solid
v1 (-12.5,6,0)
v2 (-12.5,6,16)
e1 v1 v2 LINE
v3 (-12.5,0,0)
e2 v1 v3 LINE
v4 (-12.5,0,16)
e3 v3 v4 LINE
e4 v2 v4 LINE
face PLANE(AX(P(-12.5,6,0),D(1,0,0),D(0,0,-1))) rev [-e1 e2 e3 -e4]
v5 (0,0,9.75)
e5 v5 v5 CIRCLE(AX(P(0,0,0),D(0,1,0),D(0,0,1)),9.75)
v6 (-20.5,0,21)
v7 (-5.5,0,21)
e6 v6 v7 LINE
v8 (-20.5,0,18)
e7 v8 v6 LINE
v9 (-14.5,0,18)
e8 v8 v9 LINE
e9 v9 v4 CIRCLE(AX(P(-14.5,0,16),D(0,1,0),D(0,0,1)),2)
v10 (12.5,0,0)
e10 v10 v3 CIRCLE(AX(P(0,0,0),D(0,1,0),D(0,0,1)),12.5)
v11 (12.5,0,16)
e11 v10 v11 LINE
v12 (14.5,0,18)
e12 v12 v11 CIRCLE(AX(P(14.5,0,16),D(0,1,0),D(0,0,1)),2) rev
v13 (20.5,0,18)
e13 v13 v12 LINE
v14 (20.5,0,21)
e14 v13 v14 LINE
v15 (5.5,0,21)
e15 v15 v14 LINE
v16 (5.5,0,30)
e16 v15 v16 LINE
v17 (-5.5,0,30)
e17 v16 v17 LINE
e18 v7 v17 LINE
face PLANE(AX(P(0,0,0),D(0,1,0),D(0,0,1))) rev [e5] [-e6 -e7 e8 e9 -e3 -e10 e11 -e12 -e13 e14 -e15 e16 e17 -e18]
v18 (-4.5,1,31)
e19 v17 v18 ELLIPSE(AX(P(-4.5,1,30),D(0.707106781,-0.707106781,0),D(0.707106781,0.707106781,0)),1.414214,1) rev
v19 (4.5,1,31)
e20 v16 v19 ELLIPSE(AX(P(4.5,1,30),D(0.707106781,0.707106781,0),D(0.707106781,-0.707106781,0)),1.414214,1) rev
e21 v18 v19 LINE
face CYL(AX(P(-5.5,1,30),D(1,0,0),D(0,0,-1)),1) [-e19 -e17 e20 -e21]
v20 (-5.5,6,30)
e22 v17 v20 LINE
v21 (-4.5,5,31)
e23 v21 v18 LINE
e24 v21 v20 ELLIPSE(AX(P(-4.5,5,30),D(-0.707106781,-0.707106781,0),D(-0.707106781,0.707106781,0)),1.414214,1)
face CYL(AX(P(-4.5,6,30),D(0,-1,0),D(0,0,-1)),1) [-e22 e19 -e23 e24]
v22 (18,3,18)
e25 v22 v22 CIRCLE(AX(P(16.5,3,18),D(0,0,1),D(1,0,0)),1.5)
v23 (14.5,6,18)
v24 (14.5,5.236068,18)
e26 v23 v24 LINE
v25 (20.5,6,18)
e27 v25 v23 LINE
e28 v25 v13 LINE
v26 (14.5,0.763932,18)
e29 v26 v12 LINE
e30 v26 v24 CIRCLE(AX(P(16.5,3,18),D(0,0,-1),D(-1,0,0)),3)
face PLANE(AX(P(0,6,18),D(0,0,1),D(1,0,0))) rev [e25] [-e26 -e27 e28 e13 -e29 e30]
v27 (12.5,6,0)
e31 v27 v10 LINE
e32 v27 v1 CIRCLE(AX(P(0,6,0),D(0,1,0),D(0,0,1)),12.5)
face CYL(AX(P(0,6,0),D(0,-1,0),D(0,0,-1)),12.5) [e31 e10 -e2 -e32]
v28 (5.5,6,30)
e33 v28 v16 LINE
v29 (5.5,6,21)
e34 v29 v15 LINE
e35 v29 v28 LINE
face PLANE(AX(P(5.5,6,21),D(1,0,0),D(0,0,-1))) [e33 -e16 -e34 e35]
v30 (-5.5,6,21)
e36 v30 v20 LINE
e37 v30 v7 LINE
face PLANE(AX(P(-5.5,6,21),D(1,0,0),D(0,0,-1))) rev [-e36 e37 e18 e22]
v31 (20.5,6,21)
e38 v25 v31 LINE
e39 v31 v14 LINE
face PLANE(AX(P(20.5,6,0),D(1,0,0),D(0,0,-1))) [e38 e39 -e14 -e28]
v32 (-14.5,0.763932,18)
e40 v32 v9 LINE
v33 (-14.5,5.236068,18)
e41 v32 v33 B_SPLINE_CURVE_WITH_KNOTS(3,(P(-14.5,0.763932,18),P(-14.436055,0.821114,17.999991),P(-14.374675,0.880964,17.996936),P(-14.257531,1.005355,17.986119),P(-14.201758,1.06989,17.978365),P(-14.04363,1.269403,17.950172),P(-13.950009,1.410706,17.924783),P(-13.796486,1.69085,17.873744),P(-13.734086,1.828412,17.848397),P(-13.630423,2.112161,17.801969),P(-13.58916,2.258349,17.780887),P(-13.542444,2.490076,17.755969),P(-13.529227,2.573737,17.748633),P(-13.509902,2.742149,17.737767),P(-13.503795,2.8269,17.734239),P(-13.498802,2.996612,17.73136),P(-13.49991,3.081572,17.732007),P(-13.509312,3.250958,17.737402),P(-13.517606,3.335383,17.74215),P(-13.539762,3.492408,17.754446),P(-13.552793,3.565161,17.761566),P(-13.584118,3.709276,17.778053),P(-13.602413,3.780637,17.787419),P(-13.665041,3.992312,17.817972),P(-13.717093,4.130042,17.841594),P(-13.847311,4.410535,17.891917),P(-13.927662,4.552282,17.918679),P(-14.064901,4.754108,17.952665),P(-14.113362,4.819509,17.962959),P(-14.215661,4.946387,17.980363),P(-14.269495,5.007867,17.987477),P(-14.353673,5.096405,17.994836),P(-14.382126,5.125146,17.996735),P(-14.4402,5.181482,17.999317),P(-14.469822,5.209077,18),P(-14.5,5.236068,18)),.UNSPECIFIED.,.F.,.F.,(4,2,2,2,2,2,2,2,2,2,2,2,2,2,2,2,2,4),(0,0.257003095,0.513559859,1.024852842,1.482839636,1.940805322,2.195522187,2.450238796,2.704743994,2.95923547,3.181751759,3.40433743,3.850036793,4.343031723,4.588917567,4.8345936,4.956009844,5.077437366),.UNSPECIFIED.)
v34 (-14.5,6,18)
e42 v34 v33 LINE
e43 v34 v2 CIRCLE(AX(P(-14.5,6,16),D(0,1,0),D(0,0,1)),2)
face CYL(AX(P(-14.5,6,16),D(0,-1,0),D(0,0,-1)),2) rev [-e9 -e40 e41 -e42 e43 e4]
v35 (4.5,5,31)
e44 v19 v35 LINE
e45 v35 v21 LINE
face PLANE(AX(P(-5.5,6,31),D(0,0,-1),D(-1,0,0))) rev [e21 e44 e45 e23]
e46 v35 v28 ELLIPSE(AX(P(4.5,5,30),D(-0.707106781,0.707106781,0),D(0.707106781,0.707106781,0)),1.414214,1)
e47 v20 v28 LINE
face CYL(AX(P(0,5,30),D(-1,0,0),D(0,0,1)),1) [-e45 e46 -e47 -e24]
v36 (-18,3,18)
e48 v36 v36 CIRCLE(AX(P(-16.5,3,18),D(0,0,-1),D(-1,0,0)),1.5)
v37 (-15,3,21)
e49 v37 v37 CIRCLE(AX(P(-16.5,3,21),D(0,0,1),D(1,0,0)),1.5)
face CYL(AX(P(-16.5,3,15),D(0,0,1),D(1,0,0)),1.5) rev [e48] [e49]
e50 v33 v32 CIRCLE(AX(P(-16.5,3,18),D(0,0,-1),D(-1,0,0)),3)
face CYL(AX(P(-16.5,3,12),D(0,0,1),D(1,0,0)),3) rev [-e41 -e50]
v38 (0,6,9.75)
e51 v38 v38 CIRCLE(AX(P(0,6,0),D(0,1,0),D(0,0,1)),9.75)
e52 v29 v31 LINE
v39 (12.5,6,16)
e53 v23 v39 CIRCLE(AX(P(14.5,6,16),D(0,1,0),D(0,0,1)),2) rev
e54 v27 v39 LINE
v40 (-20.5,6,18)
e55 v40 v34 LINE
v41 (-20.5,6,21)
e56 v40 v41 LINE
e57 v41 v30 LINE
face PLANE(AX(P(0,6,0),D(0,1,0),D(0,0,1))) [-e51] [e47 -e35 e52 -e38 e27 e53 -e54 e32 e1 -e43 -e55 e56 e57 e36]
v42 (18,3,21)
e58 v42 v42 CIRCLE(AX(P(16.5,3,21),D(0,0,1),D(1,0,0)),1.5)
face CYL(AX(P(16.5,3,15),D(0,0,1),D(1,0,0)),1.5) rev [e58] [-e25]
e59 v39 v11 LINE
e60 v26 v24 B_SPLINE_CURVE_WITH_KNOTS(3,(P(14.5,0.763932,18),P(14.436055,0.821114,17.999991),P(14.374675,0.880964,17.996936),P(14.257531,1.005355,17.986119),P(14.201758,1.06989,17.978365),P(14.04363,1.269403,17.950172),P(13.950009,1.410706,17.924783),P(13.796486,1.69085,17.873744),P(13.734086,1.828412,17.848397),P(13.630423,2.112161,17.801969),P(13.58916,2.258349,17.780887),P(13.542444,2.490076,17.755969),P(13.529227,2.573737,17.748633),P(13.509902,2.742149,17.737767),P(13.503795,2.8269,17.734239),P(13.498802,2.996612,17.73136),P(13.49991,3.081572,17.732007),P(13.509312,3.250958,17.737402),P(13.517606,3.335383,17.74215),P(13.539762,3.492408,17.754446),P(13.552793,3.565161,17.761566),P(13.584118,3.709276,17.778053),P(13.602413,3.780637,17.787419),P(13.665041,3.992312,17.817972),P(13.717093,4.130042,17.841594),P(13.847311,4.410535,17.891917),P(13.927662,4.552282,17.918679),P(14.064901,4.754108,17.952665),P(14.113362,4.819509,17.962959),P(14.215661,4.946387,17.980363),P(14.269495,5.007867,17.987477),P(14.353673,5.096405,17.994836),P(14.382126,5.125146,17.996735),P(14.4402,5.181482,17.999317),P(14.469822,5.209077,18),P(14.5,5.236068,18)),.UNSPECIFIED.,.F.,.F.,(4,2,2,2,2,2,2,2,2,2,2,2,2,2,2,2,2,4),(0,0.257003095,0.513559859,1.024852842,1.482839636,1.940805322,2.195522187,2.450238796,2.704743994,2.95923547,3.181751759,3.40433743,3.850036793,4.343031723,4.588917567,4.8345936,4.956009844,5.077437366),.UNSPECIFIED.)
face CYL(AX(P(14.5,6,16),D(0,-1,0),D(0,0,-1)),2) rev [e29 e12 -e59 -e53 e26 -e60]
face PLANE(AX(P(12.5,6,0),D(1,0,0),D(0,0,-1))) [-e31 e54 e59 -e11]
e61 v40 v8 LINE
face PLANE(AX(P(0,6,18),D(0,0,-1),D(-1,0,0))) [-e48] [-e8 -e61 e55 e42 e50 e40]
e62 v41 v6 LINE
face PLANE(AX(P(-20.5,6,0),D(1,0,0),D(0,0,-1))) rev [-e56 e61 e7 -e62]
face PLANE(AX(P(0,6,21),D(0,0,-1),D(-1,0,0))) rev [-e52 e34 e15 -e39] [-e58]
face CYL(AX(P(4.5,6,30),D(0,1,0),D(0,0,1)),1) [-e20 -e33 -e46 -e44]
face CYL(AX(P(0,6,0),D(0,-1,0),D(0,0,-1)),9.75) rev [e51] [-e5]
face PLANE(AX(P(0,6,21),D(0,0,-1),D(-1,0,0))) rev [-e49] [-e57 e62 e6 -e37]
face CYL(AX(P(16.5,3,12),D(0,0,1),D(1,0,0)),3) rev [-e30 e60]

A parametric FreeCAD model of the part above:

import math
import FreeCAD as App
import Part
import Sketcher


def edges_at(feature, points):
    """Names of the edges that pass closest to the given points."""
    edges = feature.Shape.Edges
    near = lambda p: min(range(len(edges)), key=lambda i: edges[i].distToShape(Part.Vertex(*p))[0])
    return sorted({f"Edge{near(p) + 1}" for p in points})

doc = App.newDocument("Part")
body = doc.addObject("PartDesign::Body", "Body")

# Sketch on XZ plane
sketch1 = body.newObject("Sketcher::SketchObject", "Sketch")
sketch1.AttachmentSupport = (doc.getObject("XZ_Plane"), [""])
sketch1.MapMode = "FlatFace"
sketch1.addGeometry(Part.ArcOfCircle(Part.Circle(App.Vector(0, 0, 0), App.Vector(0, 0, 1), 12.5), math.radians(180), math.radians(360)), False)
sketch1.addGeometry(Part.LineSegment(App.Vector(-12.5, 0, 0), App.Vector(-12.5, 16, 0)), False)
sketch1.addGeometry(Part.ArcOfCircle(Part.Circle(App.Vector(-14.5, 16, 0), App.Vector(0, 0, 1), 2), math.radians(0), math.radians(90)), False)
sketch1.addGeometry(Part.LineSegment(App.Vector(-14.5, 18, 0), App.Vector(-20.5, 18, 0)), False)
sketch1.addGeometry(Part.LineSegment(App.Vector(-20.5, 18, 0), App.Vector(-20.5, 21, 0)), False)
sketch1.addGeometry(Part.LineSegment(App.Vector(-20.5, 21, 0), App.Vector(-5.5, 21, 0)), False)
sketch1.addGeometry(Part.LineSegment(App.Vector(-5.5, 21, 0), App.Vector(-5.5, 31, 0)), False)
sketch1.addGeometry(Part.LineSegment(App.Vector(-5.5, 31, 0), App.Vector(5.5, 31, 0)), False)
sketch1.addGeometry(Part.LineSegment(App.Vector(5.5, 31, 0), App.Vector(5.5, 21, 0)), False)
sketch1.addGeometry(Part.LineSegment(App.Vector(5.5, 21, 0), App.Vector(20.5, 21, 0)), False)
sketch1.addGeometry(Part.LineSegment(App.Vector(20.5, 21, 0), App.Vector(20.5, 18, 0)), False)
sketch1.addGeometry(Part.LineSegment(App.Vector(20.5, 18, 0), App.Vector(14.5, 18, 0)), False)
sketch1.addGeometry(Part.ArcOfCircle(Part.Circle(App.Vector(14.5, 16, 0), App.Vector(0, 0, 1), 2), math.radians(90), math.radians(180)), False)
sketch1.addGeometry(Part.LineSegment(App.Vector(12.5, 16, 0), App.Vector(12.5, 0, 0)), False)
sketch1.addGeometry(Part.Circle(App.Vector(0, 0, 0), App.Vector(0, 0, 1), 9.8), False)
sketch1.addConstraint(Sketcher.Constraint("Tangent", 0, 1, 1, 1))
sketch1.addConstraint(Sketcher.Constraint("Tangent", 1, 2, 2, 1))
sketch1.addConstraint(Sketcher.Constraint("Tangent", 2, 2, 3, 1))
sketch1.addConstraint(Sketcher.Constraint("Coincident", 3, 2, 4, 1))
sketch1.addConstraint(Sketcher.Constraint("Coincident", 4, 2, 5, 1))
sketch1.addConstraint(Sketcher.Constraint("Coincident", 5, 2, 6, 1))
sketch1.addConstraint(Sketcher.Constraint("Coincident", 6, 2, 7, 1))
sketch1.addConstraint(Sketcher.Constraint("Coincident", 7, 2, 8, 1))
sketch1.addConstraint(Sketcher.Constraint("Coincident", 8, 2, 9, 1))
sketch1.addConstraint(Sketcher.Constraint("Coincident", 9, 2, 10, 1))
sketch1.addConstraint(Sketcher.Constraint("Coincident", 10, 2, 11, 1))
sketch1.addConstraint(Sketcher.Constraint("Tangent", 11, 2, 12, 1))
sketch1.addConstraint(Sketcher.Constraint("Tangent", 12, 2, 13, 1))
sketch1.addConstraint(Sketcher.Constraint("Tangent", 13, 2, 0, 2))
sketch1.addConstraint(Sketcher.Constraint("Vertical", 1))
sketch1.addConstraint(Sketcher.Constraint("Horizontal", 3))
sketch1.addConstraint(Sketcher.Constraint("Vertical", 4))
sketch1.addConstraint(Sketcher.Constraint("Horizontal", 5))
sketch1.addConstraint(Sketcher.Constraint("Vertical", 6))
sketch1.addConstraint(Sketcher.Constraint("Horizontal", 7))
sketch1.addConstraint(Sketcher.Constraint("Vertical", 8))
sketch1.addConstraint(Sketcher.Constraint("Horizontal", 9))
sketch1.addConstraint(Sketcher.Constraint("Vertical", 10))
sketch1.addConstraint(Sketcher.Constraint("Horizontal", 11))
sketch1.addConstraint(Sketcher.Constraint("Vertical", 13))
sketch1.addConstraint(Sketcher.Constraint("Coincident", 0, 3, -1, 1))
sketch1.addConstraint(Sketcher.Constraint("Coincident", 14, 3, -1, 1))
sketch1.addConstraint(Sketcher.Constraint("Equal", 2, 12))
sketch1.addConstraint(Sketcher.Constraint("Symmetric", 5, 2, 8, 2, -2))
sketch1.addConstraint(Sketcher.Constraint("Symmetric", 3, 2, 10, 2, -2))
sketch1.addConstraint(Sketcher.Constraint("Radius", 2, 2.0))
sketch1.addConstraint(Sketcher.Constraint("Diameter", 14, 19.5))
sketch1.addConstraint(Sketcher.Constraint("Radius", 0, 12.5))
sketch1.addConstraint(Sketcher.Constraint("DistanceX", 3, 2, 3, 1, 6.0))
sketch1.addConstraint(Sketcher.Constraint("DistanceX", 5, 1, 5, 2, 15.0))
sketch1.addConstraint(Sketcher.Constraint("DistanceY", 1, 1, 1, 2, 16.0))
sketch1.addConstraint(Sketcher.Constraint("DistanceY", 4, 1, 4, 2, 3.0))
sketch1.addConstraint(Sketcher.Constraint("DistanceY", 6, 1, 6, 2, 10.0))
pad1 = body.newObject("PartDesign::Pad", "Pad")
pad1.Profile = sketch1
pad1.Length = 6
pad1.Reversed = True

# Sketch on XY plane
sketch2 = body.newObject("Sketcher::SketchObject", "Sketch001")
sketch2.AttachmentSupport = (doc.getObject("XY_Plane"), [""])
sketch2.MapMode = "FlatFace"
sketch2.AttachmentOffset = App.Placement(App.Vector(0, 0, 21), App.Rotation())
sketch2.addGeometry(Part.Circle(App.Vector(-16.5, 3, 0), App.Vector(0, 0, 1), 1.5), False)
sketch2.addGeometry(Part.Circle(App.Vector(16.5, 3, 0), App.Vector(0, 0, 1), 1.5), False)
sketch2.addConstraint(Sketcher.Constraint("Equal", 0, 1))
sketch2.addConstraint(Sketcher.Constraint("Symmetric", 0, 3, 1, 3, -2))
sketch2.addConstraint(Sketcher.Constraint("Diameter", 0, 3.0))
sketch2.addConstraint(Sketcher.Constraint("DistanceY", -1, 1, 0, 3, 3.0))
sketch2.addConstraint(Sketcher.Constraint("DistanceX", 0, 3, 1, 3, 33.0))
pocket1 = body.newObject("PartDesign::Pocket", "Pocket")
pocket1.Profile = sketch2
pocket1.Length = 6

# Sketch on XY plane
sketch3 = body.newObject("Sketcher::SketchObject", "Sketch002")
sketch3.AttachmentSupport = (doc.getObject("XY_Plane"), [""])
sketch3.MapMode = "FlatFace"
sketch3.AttachmentOffset = App.Placement(App.Vector(0, 0, 18), App.Rotation())
sketch3.addGeometry(Part.Circle(App.Vector(16.5, 3, 0), App.Vector(0, 0, 1), 3), False)
sketch3.addGeometry(Part.Circle(App.Vector(-16.5, 3, 0), App.Vector(0, 0, 1), 3), False)
sketch3.addConstraint(Sketcher.Constraint("Equal", 0, 1))
sketch3.addConstraint(Sketcher.Constraint("Symmetric", 0, 3, 1, 3, -2))
sketch3.addConstraint(Sketcher.Constraint("Diameter", 0, 6.0))
sketch3.addConstraint(Sketcher.Constraint("DistanceY", -1, 1, 0, 3, 3.0))
sketch3.addConstraint(Sketcher.Constraint("DistanceX", 1, 3, 0, 3, 33.0))
pocket2 = body.newObject("PartDesign::Pocket", "Pocket001")
pocket2.Profile = sketch3
pocket2.Length = 6
doc.recompute()

fillet = body.newObject("PartDesign::Fillet", "Fillet")
fillet.Base = (pocket2, edges_at(pocket2, [
    (5.5, 3, 31),
    (-5.5, 3, 31),
    (0, 6, 31),
    (0, 0, 31),
]))
fillet.Radius = 1

doc.recompute()
